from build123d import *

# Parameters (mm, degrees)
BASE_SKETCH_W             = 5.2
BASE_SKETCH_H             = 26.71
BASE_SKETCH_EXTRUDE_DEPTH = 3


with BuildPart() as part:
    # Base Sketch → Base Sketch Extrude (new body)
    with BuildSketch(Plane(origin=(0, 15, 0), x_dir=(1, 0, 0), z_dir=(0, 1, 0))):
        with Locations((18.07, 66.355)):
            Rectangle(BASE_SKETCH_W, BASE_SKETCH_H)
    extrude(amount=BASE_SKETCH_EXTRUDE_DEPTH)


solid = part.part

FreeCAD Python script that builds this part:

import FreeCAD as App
import Part
import Sketcher

doc = App.newDocument("Part")
params = doc.addObject("Spreadsheet::Sheet", "Params")
for row, (alias, value) in enumerate([
    ("sketch1_width", "5.2 mm"),
    ("sketch1_height", "26.71 mm"),
    ("pad1_length", "3 mm"),
], start=1):
    params.set(f"A{row}", alias)
    params.set(f"B{row}", "=" + value)
    params.setAlias(f"B{row}", alias)

body = doc.addObject("PartDesign::Body", "Body")

sketch1 = doc.addObject("Sketcher::SketchObject", "Sketch")
body.addObject(sketch1)
sketch1.AttachmentSupport = (doc.XZ_Plane, [""])
sketch1.MapMode = "FlatFace"
sketch1.AttachmentOffset = App.Placement(App.Vector(0, 0, -15), App.Rotation())
sketch1.addGeometry(Part.LineSegment(App.Vector(15, -80, 0), App.Vector(15, -53, 0)), False)
sketch1.addGeometry(Part.LineSegment(App.Vector(15, -53, 0), App.Vector(21, -53, 0)), False)
sketch1.addGeometry(Part.LineSegment(App.Vector(21, -53, 0), App.Vector(21, -80, 0)), False)
sketch1.addGeometry(Part.LineSegment(App.Vector(21, -80, 0), App.Vector(15, -80, 0)), False)
sketch1.addConstraint(Sketcher.Constraint("Coincident", 0, 2, 1, 1))
sketch1.addConstraint(Sketcher.Constraint("Coincident", 1, 2, 2, 1))
sketch1.addConstraint(Sketcher.Constraint("Coincident", 2, 2, 3, 1))
sketch1.addConstraint(Sketcher.Constraint("Coincident", 3, 2, 0, 1))
sketch1.addConstraint(Sketcher.Constraint("Vertical", 0))
sketch1.addConstraint(Sketcher.Constraint("Horizontal", 1))
sketch1.addConstraint(Sketcher.Constraint("Vertical", 2))
sketch1.addConstraint(Sketcher.Constraint("Horizontal", 3))
sketch1.addConstraint(Sketcher.Constraint("DistanceX", 1, 1, 1, 2, 5.2))
sketch1.addConstraint(Sketcher.Constraint("DistanceY", 0, 2, -1, 1, 53.0))
sketch1.addConstraint(Sketcher.Constraint("DistanceY", 0, 1, 0, 2, 26.71))
sketch1.addConstraint(Sketcher.Constraint("DistanceX", -1, 1, 0, 2, 15.47))
sketch1.setExpression("Constraints[8]", "Params.sketch1_width")
sketch1.setExpression("Constraints[10]", "Params.sketch1_height")
pad1 = doc.addObject("PartDesign::Pad", "Pad")
body.addObject(pad1)
pad1.Profile = sketch1
pad1.setExpression("Length", "Params.pad1_length")
pad1.Reversed = True

doc.recompute()
